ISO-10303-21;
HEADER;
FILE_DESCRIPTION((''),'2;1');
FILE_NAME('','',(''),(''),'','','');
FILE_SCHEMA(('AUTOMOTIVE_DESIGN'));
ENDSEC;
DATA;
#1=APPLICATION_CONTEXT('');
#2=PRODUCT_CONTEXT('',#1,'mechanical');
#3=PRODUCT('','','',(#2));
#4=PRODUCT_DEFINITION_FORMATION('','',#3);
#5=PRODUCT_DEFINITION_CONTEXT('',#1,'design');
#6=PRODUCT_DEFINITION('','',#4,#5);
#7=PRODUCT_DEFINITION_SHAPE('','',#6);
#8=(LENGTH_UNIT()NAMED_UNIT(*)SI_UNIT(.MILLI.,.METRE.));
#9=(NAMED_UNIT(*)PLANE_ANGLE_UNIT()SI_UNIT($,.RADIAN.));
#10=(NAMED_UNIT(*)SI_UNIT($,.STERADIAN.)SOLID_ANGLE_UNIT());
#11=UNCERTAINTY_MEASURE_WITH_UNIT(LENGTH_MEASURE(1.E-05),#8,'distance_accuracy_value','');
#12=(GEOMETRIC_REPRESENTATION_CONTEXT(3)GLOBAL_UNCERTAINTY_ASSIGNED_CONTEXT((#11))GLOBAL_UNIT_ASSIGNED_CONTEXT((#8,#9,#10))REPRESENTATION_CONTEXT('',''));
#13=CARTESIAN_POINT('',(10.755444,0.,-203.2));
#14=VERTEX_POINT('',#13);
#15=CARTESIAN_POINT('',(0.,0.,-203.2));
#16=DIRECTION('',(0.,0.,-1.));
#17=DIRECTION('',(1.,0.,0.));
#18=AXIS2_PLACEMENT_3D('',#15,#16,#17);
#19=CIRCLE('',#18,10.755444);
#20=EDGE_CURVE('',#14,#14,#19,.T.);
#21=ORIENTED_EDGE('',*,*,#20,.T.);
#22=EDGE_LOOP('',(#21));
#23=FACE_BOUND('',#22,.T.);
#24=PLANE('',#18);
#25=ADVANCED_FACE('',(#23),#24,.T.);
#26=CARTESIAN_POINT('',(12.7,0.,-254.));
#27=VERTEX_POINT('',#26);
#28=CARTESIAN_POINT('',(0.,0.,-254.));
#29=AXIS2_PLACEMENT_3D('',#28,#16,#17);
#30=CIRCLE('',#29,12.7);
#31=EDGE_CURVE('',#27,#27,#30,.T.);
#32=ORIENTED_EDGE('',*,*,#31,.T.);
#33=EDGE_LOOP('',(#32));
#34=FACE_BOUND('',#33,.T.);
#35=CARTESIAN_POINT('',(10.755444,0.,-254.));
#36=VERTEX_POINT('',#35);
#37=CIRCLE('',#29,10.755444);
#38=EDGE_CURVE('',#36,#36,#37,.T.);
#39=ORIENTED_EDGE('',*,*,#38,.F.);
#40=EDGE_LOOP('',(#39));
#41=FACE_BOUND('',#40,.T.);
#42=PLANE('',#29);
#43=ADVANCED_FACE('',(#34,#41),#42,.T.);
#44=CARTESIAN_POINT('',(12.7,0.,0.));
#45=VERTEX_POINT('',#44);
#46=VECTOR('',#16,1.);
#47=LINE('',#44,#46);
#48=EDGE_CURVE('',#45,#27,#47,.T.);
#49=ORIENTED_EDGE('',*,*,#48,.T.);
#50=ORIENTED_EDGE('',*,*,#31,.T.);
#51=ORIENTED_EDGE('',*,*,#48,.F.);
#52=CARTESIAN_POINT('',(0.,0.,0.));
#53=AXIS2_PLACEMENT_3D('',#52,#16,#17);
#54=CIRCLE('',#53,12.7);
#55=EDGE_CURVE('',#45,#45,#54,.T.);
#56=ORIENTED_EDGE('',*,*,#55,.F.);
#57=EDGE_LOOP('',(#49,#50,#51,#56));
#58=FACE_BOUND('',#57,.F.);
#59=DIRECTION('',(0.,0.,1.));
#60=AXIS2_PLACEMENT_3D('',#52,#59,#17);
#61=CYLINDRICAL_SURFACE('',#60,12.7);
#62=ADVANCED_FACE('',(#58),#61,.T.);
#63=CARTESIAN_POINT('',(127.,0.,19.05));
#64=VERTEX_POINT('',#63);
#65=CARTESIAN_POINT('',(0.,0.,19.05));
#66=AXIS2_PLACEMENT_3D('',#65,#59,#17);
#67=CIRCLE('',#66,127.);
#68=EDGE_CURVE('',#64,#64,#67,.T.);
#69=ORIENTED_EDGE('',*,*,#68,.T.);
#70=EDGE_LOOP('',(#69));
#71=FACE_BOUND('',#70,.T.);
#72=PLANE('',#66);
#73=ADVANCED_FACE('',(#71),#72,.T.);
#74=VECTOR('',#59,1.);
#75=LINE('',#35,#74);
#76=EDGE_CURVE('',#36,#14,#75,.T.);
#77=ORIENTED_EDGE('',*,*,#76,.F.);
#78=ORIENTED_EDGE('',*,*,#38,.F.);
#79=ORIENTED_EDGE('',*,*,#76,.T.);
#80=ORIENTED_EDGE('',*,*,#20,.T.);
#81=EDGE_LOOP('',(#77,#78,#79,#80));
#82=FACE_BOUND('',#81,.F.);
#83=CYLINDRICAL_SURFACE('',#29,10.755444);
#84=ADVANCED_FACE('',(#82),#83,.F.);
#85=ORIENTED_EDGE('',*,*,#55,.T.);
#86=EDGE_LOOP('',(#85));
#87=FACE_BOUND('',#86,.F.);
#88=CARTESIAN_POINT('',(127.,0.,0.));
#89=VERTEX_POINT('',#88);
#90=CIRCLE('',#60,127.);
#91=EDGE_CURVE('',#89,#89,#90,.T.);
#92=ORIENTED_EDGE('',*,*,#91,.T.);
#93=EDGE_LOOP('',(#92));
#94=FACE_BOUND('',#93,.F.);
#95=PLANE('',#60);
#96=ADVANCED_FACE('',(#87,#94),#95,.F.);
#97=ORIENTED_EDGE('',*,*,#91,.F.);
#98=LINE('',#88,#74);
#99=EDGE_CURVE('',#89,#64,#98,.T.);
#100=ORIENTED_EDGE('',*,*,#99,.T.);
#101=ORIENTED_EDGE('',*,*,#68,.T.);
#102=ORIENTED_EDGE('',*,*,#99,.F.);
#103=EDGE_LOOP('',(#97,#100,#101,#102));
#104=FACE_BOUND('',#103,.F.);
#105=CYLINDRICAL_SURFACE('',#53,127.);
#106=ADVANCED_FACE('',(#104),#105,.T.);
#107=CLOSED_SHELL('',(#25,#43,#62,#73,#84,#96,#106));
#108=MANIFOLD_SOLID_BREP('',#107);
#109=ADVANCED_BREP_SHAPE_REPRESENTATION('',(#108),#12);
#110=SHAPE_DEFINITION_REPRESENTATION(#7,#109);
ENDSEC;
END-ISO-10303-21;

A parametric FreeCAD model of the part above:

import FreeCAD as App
import Part
import Sketcher
from FreeCAD import Vector
Q = App.Units.Quantity

doc = App.newDocument("Part")
body = doc.addObject("PartDesign::Body", "Body")

# Sketch on XY plane
sketch1 = doc.addObject("Sketcher::SketchObject", "Sketch")
body.addObject(sketch1)
sketch1.AttachmentSupport = (doc.XY_Plane, [""])
sketch1.MapMode = "FlatFace"
sketch1.addGeometry(Part.Circle(Vector(0, 0, 0), Vector(0, 0, 1), 127), False)
sketch1.addConstraint(Sketcher.Constraint("Coincident", 0, 3, -1, 1))
sketch1.addConstraint(Sketcher.Constraint("Diameter", 0, Q("10 in")))
pad1 = doc.addObject("PartDesign::Pad", "Pad")
body.addObject(pad1)
pad1.Profile = sketch1
pad1.Length = Q("0.75 in")

# Sketch on XY plane
sketch2 = doc.addObject("Sketcher::SketchObject", "Sketch001")
body.addObject(sketch2)
sketch2.AttachmentSupport = (doc.XY_Plane, [""])
sketch2.MapMode = "FlatFace"
sketch2.addGeometry(Part.Circle(Vector(0, 0, 0), Vector(0, 0, 1), 12.7), False)
sketch2.addConstraint(Sketcher.Constraint("Coincident", 0, 3, -1, 1))
sketch2.addConstraint(Sketcher.Constraint("Diameter", 0, Q("1 in")))
pad2 = doc.addObject("PartDesign::Pad", "Pad001")
body.addObject(pad2)
pad2.Profile = sketch2
pad2.Length = Q("10 in")
pad2.Reversed = True

# Sketch on XY plane
sketch3 = doc.addObject("Sketcher::SketchObject", "Sketch002")
body.addObject(sketch3)
sketch3.AttachmentSupport = (doc.XY_Plane, [""])
sketch3.MapMode = "FlatFace"
sketch3.AttachmentOffset = App.Placement(Vector(0, 0, -10 * 25.4), App.Rotation())
sketch3.addGeometry(Part.Circle(Vector(0, 0, 0), Vector(0, 0, 1), 10.755444), False)
sketch3.addConstraint(Sketcher.Constraint("Coincident", 0, 3, -1, 1))
sketch3.addConstraint(Sketcher.Constraint("Diameter", 0, 21.510888))
pocket1 = doc.addObject("PartDesign::Pocket", "Pocket")
body.addObject(pocket1)
pocket1.Profile = sketch3
pocket1.Length = Q("2 in")
pocket1.Reversed = True

doc.recompute()
